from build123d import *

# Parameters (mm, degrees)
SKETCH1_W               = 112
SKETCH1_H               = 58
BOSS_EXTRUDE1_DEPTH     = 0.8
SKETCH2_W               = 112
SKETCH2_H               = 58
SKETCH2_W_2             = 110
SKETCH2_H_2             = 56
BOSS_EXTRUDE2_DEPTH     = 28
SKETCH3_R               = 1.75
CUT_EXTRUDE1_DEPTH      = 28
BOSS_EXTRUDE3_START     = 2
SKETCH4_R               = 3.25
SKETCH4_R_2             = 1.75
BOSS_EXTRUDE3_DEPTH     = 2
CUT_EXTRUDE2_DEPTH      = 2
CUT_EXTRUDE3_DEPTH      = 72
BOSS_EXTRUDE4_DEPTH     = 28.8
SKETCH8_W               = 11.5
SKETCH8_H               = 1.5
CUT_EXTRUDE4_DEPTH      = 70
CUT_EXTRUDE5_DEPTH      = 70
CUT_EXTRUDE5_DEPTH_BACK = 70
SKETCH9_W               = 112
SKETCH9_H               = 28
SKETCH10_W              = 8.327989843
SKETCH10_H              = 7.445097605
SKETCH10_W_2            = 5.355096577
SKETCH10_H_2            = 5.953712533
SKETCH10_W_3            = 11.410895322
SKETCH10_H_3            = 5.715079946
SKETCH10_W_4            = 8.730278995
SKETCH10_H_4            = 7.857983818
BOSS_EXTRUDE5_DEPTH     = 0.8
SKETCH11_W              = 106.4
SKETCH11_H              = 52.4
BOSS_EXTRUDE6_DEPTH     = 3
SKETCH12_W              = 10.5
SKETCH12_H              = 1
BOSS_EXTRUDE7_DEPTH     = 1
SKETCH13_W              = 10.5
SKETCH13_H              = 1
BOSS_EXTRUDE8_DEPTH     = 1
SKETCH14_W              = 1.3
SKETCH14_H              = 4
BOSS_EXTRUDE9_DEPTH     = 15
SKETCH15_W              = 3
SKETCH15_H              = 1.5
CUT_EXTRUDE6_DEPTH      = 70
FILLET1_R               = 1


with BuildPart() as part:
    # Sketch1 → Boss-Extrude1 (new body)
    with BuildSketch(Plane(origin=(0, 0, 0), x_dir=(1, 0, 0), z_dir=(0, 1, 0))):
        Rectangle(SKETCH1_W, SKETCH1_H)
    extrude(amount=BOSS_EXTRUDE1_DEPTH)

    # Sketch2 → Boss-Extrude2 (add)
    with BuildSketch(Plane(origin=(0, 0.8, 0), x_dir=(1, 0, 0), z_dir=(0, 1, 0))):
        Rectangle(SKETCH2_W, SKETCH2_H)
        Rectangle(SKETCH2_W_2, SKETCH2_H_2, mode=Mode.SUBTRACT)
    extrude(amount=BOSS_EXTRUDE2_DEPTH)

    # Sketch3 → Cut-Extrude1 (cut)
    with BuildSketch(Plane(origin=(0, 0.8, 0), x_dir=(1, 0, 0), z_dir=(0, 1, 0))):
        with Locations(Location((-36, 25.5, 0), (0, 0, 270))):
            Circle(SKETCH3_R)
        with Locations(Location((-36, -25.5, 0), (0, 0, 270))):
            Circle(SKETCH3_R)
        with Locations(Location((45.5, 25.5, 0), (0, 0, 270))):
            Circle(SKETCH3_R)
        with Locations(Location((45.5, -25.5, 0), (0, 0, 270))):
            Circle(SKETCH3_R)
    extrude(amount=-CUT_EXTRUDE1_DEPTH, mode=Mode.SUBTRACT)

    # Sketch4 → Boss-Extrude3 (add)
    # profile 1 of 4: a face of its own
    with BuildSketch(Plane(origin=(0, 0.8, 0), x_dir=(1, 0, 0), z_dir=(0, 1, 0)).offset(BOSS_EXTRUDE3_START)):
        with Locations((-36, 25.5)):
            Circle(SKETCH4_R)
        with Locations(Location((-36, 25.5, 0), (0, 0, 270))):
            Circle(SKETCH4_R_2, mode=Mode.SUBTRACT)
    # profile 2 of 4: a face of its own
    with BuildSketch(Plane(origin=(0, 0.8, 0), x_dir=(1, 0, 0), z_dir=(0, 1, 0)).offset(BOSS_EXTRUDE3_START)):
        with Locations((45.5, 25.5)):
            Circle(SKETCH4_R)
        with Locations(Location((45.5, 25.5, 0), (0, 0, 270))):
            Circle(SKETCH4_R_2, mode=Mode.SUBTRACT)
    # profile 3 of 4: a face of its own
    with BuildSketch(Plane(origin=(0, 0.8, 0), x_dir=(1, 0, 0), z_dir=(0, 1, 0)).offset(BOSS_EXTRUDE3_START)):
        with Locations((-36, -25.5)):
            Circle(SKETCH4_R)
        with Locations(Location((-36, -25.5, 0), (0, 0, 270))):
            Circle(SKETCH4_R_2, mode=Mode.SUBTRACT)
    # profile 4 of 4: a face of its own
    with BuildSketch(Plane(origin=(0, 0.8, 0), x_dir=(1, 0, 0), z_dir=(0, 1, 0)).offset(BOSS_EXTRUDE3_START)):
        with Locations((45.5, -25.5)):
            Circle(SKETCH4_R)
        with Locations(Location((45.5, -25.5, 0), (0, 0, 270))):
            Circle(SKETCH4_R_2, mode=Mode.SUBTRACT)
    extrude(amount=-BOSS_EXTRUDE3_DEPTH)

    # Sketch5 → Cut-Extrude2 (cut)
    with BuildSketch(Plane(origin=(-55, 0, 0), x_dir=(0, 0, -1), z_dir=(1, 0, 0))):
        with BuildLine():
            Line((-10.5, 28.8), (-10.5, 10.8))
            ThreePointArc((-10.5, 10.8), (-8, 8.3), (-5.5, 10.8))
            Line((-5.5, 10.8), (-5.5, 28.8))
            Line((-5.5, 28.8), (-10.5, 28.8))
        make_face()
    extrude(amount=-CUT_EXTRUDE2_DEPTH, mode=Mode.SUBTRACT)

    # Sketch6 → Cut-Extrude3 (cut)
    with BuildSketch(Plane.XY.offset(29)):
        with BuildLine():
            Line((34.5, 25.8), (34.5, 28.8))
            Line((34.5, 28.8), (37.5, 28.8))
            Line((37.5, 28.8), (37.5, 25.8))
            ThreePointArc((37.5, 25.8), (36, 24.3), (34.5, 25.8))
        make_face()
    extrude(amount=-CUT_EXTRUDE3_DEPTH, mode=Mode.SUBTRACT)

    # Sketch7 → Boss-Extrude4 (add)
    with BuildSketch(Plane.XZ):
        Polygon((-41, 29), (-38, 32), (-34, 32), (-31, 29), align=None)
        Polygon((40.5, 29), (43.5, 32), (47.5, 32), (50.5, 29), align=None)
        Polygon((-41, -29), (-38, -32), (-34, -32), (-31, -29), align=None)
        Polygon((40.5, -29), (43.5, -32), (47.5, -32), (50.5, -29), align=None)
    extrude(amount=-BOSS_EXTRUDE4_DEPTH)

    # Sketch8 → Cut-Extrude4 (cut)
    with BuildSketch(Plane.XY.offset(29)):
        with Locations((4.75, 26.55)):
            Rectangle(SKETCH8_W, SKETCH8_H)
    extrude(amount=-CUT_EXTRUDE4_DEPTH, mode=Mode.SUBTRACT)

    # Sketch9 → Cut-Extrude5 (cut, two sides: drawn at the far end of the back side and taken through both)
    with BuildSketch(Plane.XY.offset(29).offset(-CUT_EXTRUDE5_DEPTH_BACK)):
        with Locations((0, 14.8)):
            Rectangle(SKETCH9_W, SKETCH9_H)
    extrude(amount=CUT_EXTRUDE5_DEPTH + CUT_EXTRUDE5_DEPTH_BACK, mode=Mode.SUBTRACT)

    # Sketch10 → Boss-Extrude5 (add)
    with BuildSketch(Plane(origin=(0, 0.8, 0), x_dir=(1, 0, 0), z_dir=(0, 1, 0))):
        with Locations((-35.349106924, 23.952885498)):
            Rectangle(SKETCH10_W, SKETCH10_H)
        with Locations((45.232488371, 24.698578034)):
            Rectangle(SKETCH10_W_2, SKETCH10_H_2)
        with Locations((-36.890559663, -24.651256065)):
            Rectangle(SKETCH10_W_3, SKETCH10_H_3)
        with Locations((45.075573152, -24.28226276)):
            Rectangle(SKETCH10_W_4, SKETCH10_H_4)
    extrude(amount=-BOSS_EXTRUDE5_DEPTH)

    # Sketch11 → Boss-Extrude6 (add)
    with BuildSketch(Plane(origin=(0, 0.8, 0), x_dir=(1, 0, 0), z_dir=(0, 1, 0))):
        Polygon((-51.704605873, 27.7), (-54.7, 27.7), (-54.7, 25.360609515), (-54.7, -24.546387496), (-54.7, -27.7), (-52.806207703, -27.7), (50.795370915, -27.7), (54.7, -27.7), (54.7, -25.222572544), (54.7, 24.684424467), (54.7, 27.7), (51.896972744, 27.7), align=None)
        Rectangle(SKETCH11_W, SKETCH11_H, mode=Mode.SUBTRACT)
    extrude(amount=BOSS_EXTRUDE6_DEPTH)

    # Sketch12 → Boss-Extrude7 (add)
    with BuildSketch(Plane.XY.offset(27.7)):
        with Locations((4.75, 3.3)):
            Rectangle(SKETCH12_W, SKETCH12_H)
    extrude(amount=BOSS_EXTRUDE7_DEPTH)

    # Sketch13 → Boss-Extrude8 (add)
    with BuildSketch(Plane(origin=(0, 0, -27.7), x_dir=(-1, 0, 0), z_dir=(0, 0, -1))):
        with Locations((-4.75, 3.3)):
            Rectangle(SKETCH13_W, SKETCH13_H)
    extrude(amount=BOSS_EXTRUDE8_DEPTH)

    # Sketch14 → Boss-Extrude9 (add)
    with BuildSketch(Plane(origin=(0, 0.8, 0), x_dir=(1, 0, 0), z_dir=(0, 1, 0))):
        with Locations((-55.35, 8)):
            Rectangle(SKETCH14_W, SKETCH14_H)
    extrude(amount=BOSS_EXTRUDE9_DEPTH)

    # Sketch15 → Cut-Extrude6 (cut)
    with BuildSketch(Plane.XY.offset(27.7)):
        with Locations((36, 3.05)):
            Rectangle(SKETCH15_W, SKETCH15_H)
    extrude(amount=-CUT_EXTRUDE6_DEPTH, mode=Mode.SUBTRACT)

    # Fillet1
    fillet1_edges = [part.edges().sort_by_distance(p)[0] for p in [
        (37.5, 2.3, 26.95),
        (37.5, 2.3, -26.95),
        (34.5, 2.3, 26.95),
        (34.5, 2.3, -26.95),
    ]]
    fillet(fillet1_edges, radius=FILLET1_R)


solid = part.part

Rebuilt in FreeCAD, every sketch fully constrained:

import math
import FreeCAD as App
import Part
import Sketcher
from FreeCAD import Vector
Q = App.Units.Quantity


def edges_at(feature, points):
    """Names of the edges that pass closest to the given points."""
    edges = feature.Shape.Edges
    near = lambda p: min(range(len(edges)), key=lambda i: edges[i].distToShape(Part.Vertex(*p))[0])
    return sorted({f"Edge{near(p) + 1}" for p in points})


def add_polygon(sketch, points):
    """Adds a closed chain of lines whose ends are joined by coincident constraints."""
    first, n = sketch.GeometryCount, len(points)
    for a, b in zip(points, points[1:] + points[:1]):
        sketch.addGeometry(Part.LineSegment(App.Vector(*a, 0), App.Vector(*b, 0)), False)
    for i in range(n):
        sketch.addConstraint(Sketcher.Constraint("Coincident", first + i, 2, first + (i + 1) % n, 1))

doc = App.newDocument("Part")
params = doc.addObject("Spreadsheet::Sheet", "Params")
for row, (alias, value) in enumerate([
    ("sketch1_width", "112 mm"),
    ("sketch1_height", "58 mm"),
    ("pad1_length", "0.8 mm"),
    ("sketch2_width", "112 mm"),
    ("sketch2_width2", "110 mm"),
    ("sketch2_height", "58 mm"),
    ("sketch2_height2", "56 mm"),
    ("pad2_length", "28 mm"),
    ("sketch3_diameter", "3.5 mm"),
    ("pocket1_length", "28 mm"),
    ("sketch4_diameter", "6.5 mm"),
    ("sketch4_diameter2", "3.5 mm"),
    ("pad3_length", "2 mm"),
    ("sketch5_radius", "2.5 mm"),
    ("sketch5_width", "18 mm"),
    ("pocket2_length", "2 mm"),
    ("sketch6_radius", "1.5 mm"),
    ("pocket3_length", "72 mm"),
    ("sketch7_width", "10 mm"),
    ("sketch7_width2", "4 mm"),
    ("pad4_length", "28.8 mm"),
    ("sketch8_width", "11.5 mm"),
    ("sketch8_height", "1.5 mm"),
    ("pocket4_length", "70 mm"),
    ("sketch9_width", "112 mm"),
    ("sketch9_height", "28 mm"),
    ("pad5_length", "0.8 mm"),
    ("sketch11_width", "109.4 mm"),
    ("sketch11_width2", "106.4 mm"),
    ("sketch11_height", "55.4 mm"),
    ("sketch11_height2", "52.4 mm"),
    ("pad6_length", "3 mm"),
    ("sketch12_height", "1 mm"),
    ("sketch12_width", "10.5 mm"),
    ("pad7_length", "1 mm"),
    ("sketch13_height", "1 mm"),
    ("sketch13_width", "10.5 mm"),
    ("pad8_length", "1 mm"),
    ("sketch14_height", "4 mm"),
    ("sketch14_width", "1.3 mm"),
    ("pad9_length", "15 mm"),
    ("sketch15_width", "3 mm"),
    ("sketch15_height", "1.5 mm"),
    ("pocket6_length", "70 mm"),
    ("fillet_radius", "1 mm"),
], start=1):
    params.set(f"A{row}", alias)
    params.set(f"B{row}", "=" + value)
    params.setAlias(f"B{row}", alias)

body = doc.addObject("PartDesign::Body", "Body")

sketch1 = body.newObject("Sketcher::SketchObject", "Sketch")
sketch1.AttachmentSupport = (doc.getObject("XZ_Plane"), [""])
sketch1.MapMode = "FlatFace"
add_polygon(sketch1, [(-56, -29), (-56, 29), (56, 29), (56, -29)])
sketch1.addConstraint([
    Sketcher.Constraint("Vertical", 0),
    Sketcher.Constraint("Horizontal", 1),
    Sketcher.Constraint("Vertical", 2),
    Sketcher.Constraint("Horizontal", 3),
    Sketcher.Constraint("Symmetric", 0, 2, 2, 2, -1, 1),
    Sketcher.Constraint("DistanceX", 1, 1, 1, 2, Q("112 mm")),
    Sketcher.Constraint("DistanceY", 0, 1, 0, 2, Q("58 mm")),
])
sketch1.setExpression("Constraints[9]", "Params.sketch1_width")
sketch1.setExpression("Constraints[10]", "Params.sketch1_height")
pad1 = body.newObject("PartDesign::Pad", "Pad")
pad1.Profile = sketch1
pad1.setExpression("Length", "Params.pad1_length")
pad1.Reversed = True

sketch2 = body.newObject("Sketcher::SketchObject", "Sketch001")
sketch2.AttachmentSupport = (doc.getObject("XZ_Plane"), [""])
sketch2.MapMode = "FlatFace"
sketch2.AttachmentOffset = App.Placement(Vector(0, 0, -0.8), App.Rotation())
add_polygon(sketch2, [(-56, -29), (-56, 29), (56, 29), (56, -29)])
add_polygon(sketch2, [(55, 28), (-55, 28), (-55, -28), (55, -28)])
sketch2.addConstraint([
    Sketcher.Constraint("Vertical", 0),
    Sketcher.Constraint("Horizontal", 1),
    Sketcher.Constraint("Vertical", 2),
    Sketcher.Constraint("Horizontal", 3),
    Sketcher.Constraint("Horizontal", 4),
    Sketcher.Constraint("Vertical", 5),
    Sketcher.Constraint("Horizontal", 6),
    Sketcher.Constraint("Vertical", 7),
    Sketcher.Constraint("Symmetric", 0, 2, 2, 2, -1, 1),
    Sketcher.Constraint("Symmetric", 4, 2, 6, 2, -1, 1),
    Sketcher.Constraint("DistanceX", 1, 1, 1, 2, Q("112 mm")),
    Sketcher.Constraint("DistanceX", 4, 2, 4, 1, Q("110 mm")),
    Sketcher.Constraint("DistanceY", 0, 1, 0, 2, Q("58 mm")),
    Sketcher.Constraint("DistanceY", 5, 2, 5, 1, Q("56 mm")),
])
sketch2.setExpression("Constraints[18]", "Params.sketch2_width")
sketch2.setExpression("Constraints[19]", "Params.sketch2_width2")
sketch2.setExpression("Constraints[20]", "Params.sketch2_height")
sketch2.setExpression("Constraints[21]", "Params.sketch2_height2")
pad2 = body.newObject("PartDesign::Pad", "Pad001")
pad2.Profile = sketch2
pad2.setExpression("Length", "Params.pad2_length")
pad2.Reversed = True

sketch3 = body.newObject("Sketcher::SketchObject", "Sketch002")
sketch3.AttachmentSupport = (doc.getObject("XZ_Plane"), [""])
sketch3.MapMode = "FlatFace"
sketch3.AttachmentOffset = App.Placement(Vector(0, 0, -0.8), App.Rotation())
sketch3.addGeometry([
    Part.Circle(Vector(-36, -25.5, 0), Vector(0, 0, 1), 1.8),
    Part.Circle(Vector(-36, 25.5, 0), Vector(0, 0, 1), 1.8),
    Part.Circle(Vector(45.5, -25.5, 0), Vector(0, 0, 1), 1.8),
    Part.Circle(Vector(45.5, 25.5, 0), Vector(0, 0, 1), 1.8),
], False)
sketch3.addConstraint([
    Sketcher.Constraint("Equal", 0, 1),
    Sketcher.Constraint("Equal", 1, 2),
    Sketcher.Constraint("Equal", 2, 3),
    Sketcher.Constraint("Symmetric", 0, 3, 1, 3, -1),
    Sketcher.Constraint("Symmetric", 2, 3, 3, 3, -1),
    Sketcher.Constraint("Horizontal", 0, 3, 2, 3),
    Sketcher.Constraint("Diameter", 0, Q("3.5 mm")),
    Sketcher.Constraint("DistanceX", 0, 3, -1, 1, Q("36 mm")),
    Sketcher.Constraint("DistanceY", 0, 3, 1, 3, Q("51 mm")),
    Sketcher.Constraint("DistanceX", -1, 1, 2, 3, Q("45.5 mm")),
])
sketch3.setExpression("Constraints[6]", "Params.sketch3_diameter")
pocket1 = body.newObject("PartDesign::Pocket", "Pocket")
pocket1.Profile = sketch3
pocket1.setExpression("Length", "Params.pocket1_length")
pocket1.Reversed = True

sketch4 = body.newObject("Sketcher::SketchObject", "Sketch003")
sketch4.AttachmentSupport = (doc.getObject("XZ_Plane"), [""])
sketch4.MapMode = "FlatFace"
sketch4.AttachmentOffset = App.Placement(Vector(0, 0, -2.8), App.Rotation())
sketch4.addGeometry([
    Part.Circle(Vector(-36, -25.5, 0), Vector(0, 0, 1), 3.2),
    Part.Circle(Vector(-36, -25.5, 0), Vector(0, 0, 1), 1.8),
    Part.Circle(Vector(45.5, -25.5, 0), Vector(0, 0, 1), 3.2),
    Part.Circle(Vector(45.5, -25.5, 0), Vector(0, 0, 1), 1.8),
    Part.Circle(Vector(-36, 25.5, 0), Vector(0, 0, 1), 3.2),
    Part.Circle(Vector(-36, 25.5, 0), Vector(0, 0, 1), 1.8),
    Part.Circle(Vector(45.5, 25.5, 0), Vector(0, 0, 1), 3.2),
    Part.Circle(Vector(45.5, 25.5, 0), Vector(0, 0, 1), 1.8),
], False)
sketch4.addConstraint([
    Sketcher.Constraint("Coincident", 1, 3, 0, 3),
    Sketcher.Constraint("Coincident", 3, 3, 2, 3),
    Sketcher.Constraint("Coincident", 5, 3, 4, 3),
    Sketcher.Constraint("Coincident", 7, 3, 6, 3),
    Sketcher.Constraint("Equal", 0, 2),
    Sketcher.Constraint("Equal", 1, 3),
    Sketcher.Constraint("Equal", 2, 4),
    Sketcher.Constraint("Equal", 3, 5),
    Sketcher.Constraint("Equal", 4, 6),
    Sketcher.Constraint("Equal", 5, 7),
    Sketcher.Constraint("Symmetric", 0, 3, 4, 3, -1),
    Sketcher.Constraint("Symmetric", 2, 3, 6, 3, -1),
    Sketcher.Constraint("Horizontal", 1, 3, 2, 3),
    Sketcher.Constraint("Diameter", 0, Q("6.5 mm")),
    Sketcher.Constraint("Diameter", 1, Q("3.5 mm")),
    Sketcher.Constraint("DistanceX", 0, 3, -1, 1, Q("36 mm")),
    Sketcher.Constraint("DistanceY", 0, 3, 4, 3, Q("51 mm")),
    Sketcher.Constraint("DistanceX", -1, 1, 2, 3, Q("45.5 mm")),
])
sketch4.setExpression("Constraints[13]", "Params.sketch4_diameter")
sketch4.setExpression("Constraints[14]", "Params.sketch4_diameter2")
pad3 = body.newObject("PartDesign::Pad", "Pad002")
pad3.Profile = sketch4
pad3.setExpression("Length", "Params.pad3_length")

sketch5 = body.newObject("Sketcher::SketchObject", "Sketch004")
sketch5.AttachmentSupport = (doc.getObject("YZ_Plane"), [""])
sketch5.MapMode = "FlatFace"
sketch5.AttachmentOffset = App.Placement(Vector(0, 0, -55), App.Rotation())
sketch5.addGeometry([
    Part.LineSegment(Vector(28.8, 10.5, 0), Vector(10.8, 10.5, 0)),
    Part.ArcOfCircle(Part.Circle(Vector(10.8, 8, 0), Vector(0, 0, 1), 2.5), math.radians(90), math.radians(270)),
    Part.LineSegment(Vector(10.8, 5.5, 0), Vector(28.8, 5.5, 0)),
    Part.LineSegment(Vector(28.8, 5.5, 0), Vector(28.8, 10.5, 0)),
], False)
sketch5.addConstraint([
    Sketcher.Constraint("Tangent", 0, 2, 1, 1),
    Sketcher.Constraint("Tangent", 1, 2, 2, 1),
    Sketcher.Constraint("Coincident", 2, 2, 3, 1),
    Sketcher.Constraint("Coincident", 3, 2, 0, 1),
    Sketcher.Constraint("Horizontal", 0),
    Sketcher.Constraint("Horizontal", 2),
    Sketcher.Constraint("Vertical", 3),
    Sketcher.Constraint("Radius", 1, Q("2.5 mm")),
    Sketcher.Constraint("DistanceX", 0, 2, 0, 1, Q("18 mm")),
    Sketcher.Constraint("DistanceY", -1, 1, 1, 3, Q("8 mm")),
    Sketcher.Constraint("DistanceX", -1, 1, 1, 3, Q("10.8 mm")),
])
sketch5.setExpression("Constraints[7]", "Params.sketch5_radius")
sketch5.setExpression("Constraints[8]", "Params.sketch5_width")
pocket2 = body.newObject("PartDesign::Pocket", "Pocket001")
pocket2.Profile = sketch5
pocket2.setExpression("Length", "Params.pocket2_length")

sketch6 = body.newObject("Sketcher::SketchObject", "Sketch005")
sketch6.AttachmentSupport = (doc.getObject("XY_Plane"), [""])
sketch6.MapMode = "FlatFace"
sketch6.AttachmentOffset = App.Placement(Vector(0, 0, 29), App.Rotation())
sketch6.addGeometry([
    Part.LineSegment(Vector(34.5, 28.8, 0), Vector(34.5, 25.8, 0)),
    Part.ArcOfCircle(Part.Circle(Vector(36, 25.8, 0), Vector(0, 0, 1), 1.5), math.radians(180), math.radians(360)),
    Part.LineSegment(Vector(37.5, 25.8, 0), Vector(37.5, 28.8, 0)),
    Part.LineSegment(Vector(37.5, 28.8, 0), Vector(34.5, 28.8, 0)),
], False)
sketch6.addConstraint([
    Sketcher.Constraint("Tangent", 0, 2, 1, 1),
    Sketcher.Constraint("Tangent", 1, 2, 2, 1),
    Sketcher.Constraint("Coincident", 2, 2, 3, 1),
    Sketcher.Constraint("Coincident", 3, 2, 0, 1),
    Sketcher.Constraint("Vertical", 0),
    Sketcher.Constraint("Vertical", 2),
    Sketcher.Constraint("Horizontal", 3),
    Sketcher.Constraint("Equal", 3, 0),
    Sketcher.Constraint("Radius", 1, Q("1.5 mm")),
    Sketcher.Constraint("DistanceX", -1, 1, 1, 3, Q("36 mm")),
    Sketcher.Constraint("DistanceY", -1, 1, 1, 3, Q("25.8 mm")),
])
sketch6.setExpression("Constraints[8]", "Params.sketch6_radius")
pocket3 = body.newObject("PartDesign::Pocket", "Pocket002")
pocket3.Profile = sketch6
pocket3.setExpression("Length", "Params.pocket3_length")

sketch7 = body.newObject("Sketcher::SketchObject", "Sketch006")
sketch7.AttachmentSupport = (doc.getObject("XZ_Plane"), [""])
sketch7.MapMode = "FlatFace"
add_polygon(sketch7, [(-38, 32), (-41, 29), (-31, 29), (-34, 32)])
add_polygon(sketch7, [(43.5, 32), (40.5, 29), (50.5, 29), (47.5, 32)])
add_polygon(sketch7, [(-41, -29), (-38, -32), (-34, -32), (-31, -29)])
add_polygon(sketch7, [(40.5, -29), (43.5, -32), (47.5, -32), (50.5, -29)])
sketch7.addConstraint([
    Sketcher.Constraint("Horizontal", 1),
    Sketcher.Constraint("Horizontal", 3),
    Sketcher.Constraint("Horizontal", 5),
    Sketcher.Constraint("Horizontal", 7),
    Sketcher.Constraint("Horizontal", 9),
    Sketcher.Constraint("Horizontal", 11),
    Sketcher.Constraint("Horizontal", 13),
    Sketcher.Constraint("Horizontal", 15),
    Sketcher.Constraint("Symmetric", 3, 2, 8, 2, -1),
    Sketcher.Constraint("Symmetric", 1, 2, 10, 2, -1),
    Sketcher.Constraint("Symmetric", 7, 2, 12, 2, -1),
    Sketcher.Constraint("Symmetric", 5, 2, 14, 2, -1),
    Sketcher.Constraint("Perpendicular", 0, 2),
    Sketcher.Constraint("Perpendicular", 2, 4),
    Sketcher.Constraint("Perpendicular", 4, 6),
    Sketcher.Constraint("Parallel", 6, 8),
    Sketcher.Constraint("Perpendicular", 8, 10),
    Sketcher.Constraint("Perpendicular", 10, 12),
    Sketcher.Constraint("Perpendicular", 12, 14),
    Sketcher.Constraint("Horizontal", 1, 2, 4, 2),
    Sketcher.Constraint("Horizontal", 3, 2, 6, 2),
    Sketcher.Constraint("Vertical", 2, 2, 9, 2),
    Sketcher.Constraint("Equal", 1, 5),
    Sketcher.Constraint("DistanceX", 1, 1, 1, 2, Q("10 mm")),
    Sketcher.Constraint("DistanceX", 3, 2, 3, 1, Q("4 mm")),
    Sketcher.Constraint("DistanceX", 0, 2, -1, 1, Q("41 mm")),
    Sketcher.Constraint("DistanceY", -1, 1, 0, 2, Q("29 mm")),
    Sketcher.Constraint("DistanceX", -1, 1, 4, 2, Q("40.5 mm")),
])
sketch7.setExpression("Constraints[39]", "Params.sketch7_width")
sketch7.setExpression("Constraints[40]", "Params.sketch7_width2")
pad4 = body.newObject("PartDesign::Pad", "Pad003")
pad4.Profile = sketch7
pad4.setExpression("Length", "Params.pad4_length")
pad4.Reversed = True

sketch8 = body.newObject("Sketcher::SketchObject", "Sketch007")
sketch8.AttachmentSupport = (doc.getObject("XY_Plane"), [""])
sketch8.MapMode = "FlatFace"
sketch8.AttachmentOffset = App.Placement(Vector(0, 0, 29), App.Rotation())
add_polygon(sketch8, [(-1, 27.3), (-1, 25.8), (10.5, 25.8), (10.5, 27.3)])
sketch8.addConstraint([
    Sketcher.Constraint("Vertical", 0),
    Sketcher.Constraint("Horizontal", 1),
    Sketcher.Constraint("Vertical", 2),
    Sketcher.Constraint("Horizontal", 3),
    Sketcher.Constraint("DistanceX", 1, 1, 1, 2, Q("11.5 mm")),
    Sketcher.Constraint("DistanceY", 0, 2, 0, 1, Q("1.5 mm")),
    Sketcher.Constraint("DistanceX", 0, 2, -1, 1, Q("1 mm")),
    Sketcher.Constraint("DistanceY", -1, 1, 0, 2, Q("25.8 mm")),
])
sketch8.setExpression("Constraints[8]", "Params.sketch8_width")
sketch8.setExpression("Constraints[9]", "Params.sketch8_height")
pocket4 = body.newObject("PartDesign::Pocket", "Pocket003")
pocket4.Profile = sketch8
pocket4.setExpression("Length", "Params.pocket4_length")

sketch9 = body.newObject("Sketcher::SketchObject", "Sketch008")
sketch9.AttachmentSupport = (doc.getObject("XY_Plane"), [""])
sketch9.MapMode = "FlatFace"
sketch9.AttachmentOffset = App.Placement(Vector(0, 0, 29), App.Rotation())
add_polygon(sketch9, [(-56, 29), (-56, 1), (56, 1), (56, 29)])
sketch9.addConstraint([
    Sketcher.Constraint("Vertical", 0),
    Sketcher.Constraint("Horizontal", 1),
    Sketcher.Constraint("Vertical", 2),
    Sketcher.Constraint("Horizontal", 3),
    Sketcher.Constraint("DistanceX", 1, 1, 1, 2, Q("112 mm")),
    Sketcher.Constraint("DistanceY", 0, 2, 0, 1, Q("28 mm")),
    Sketcher.Constraint("DistanceX", 0, 2, -1, 1, Q("56 mm")),
    Sketcher.Constraint("DistanceY", -1, 1, 0, 2, Q("0.8 mm")),
])
sketch9.setExpression("Constraints[8]", "Params.sketch9_width")
sketch9.setExpression("Constraints[9]", "Params.sketch9_height")
pocket5 = body.newObject("PartDesign::Pocket", "Pocket004")
pocket5.Profile = sketch9
pocket5.Type = "ThroughAll"
pocket5.Midplane = True

sketch10 = body.newObject("Sketcher::SketchObject", "Sketch009")
sketch10.AttachmentSupport = (doc.getObject("XZ_Plane"), [""])
sketch10.MapMode = "FlatFace"
sketch10.AttachmentOffset = App.Placement(Vector(0, 0, -0.8), App.Rotation())
add_polygon(sketch10, [(-40, -28), (-40, -20), (-31, -20), (-31, -28)])
add_polygon(sketch10, [(43, -28), (43, -22), (48, -22), (48, -28)])
add_polygon(sketch10, [(-43, 22), (-43, 28), (-31, 28), (-31, 22)])
add_polygon(sketch10, [(41, 20), (41, 28), (49, 28), (49, 20)])
sketch10.addConstraint([
    Sketcher.Constraint("Vertical", 0),
    Sketcher.Constraint("Horizontal", 1),
    Sketcher.Constraint("Vertical", 2),
    Sketcher.Constraint("Horizontal", 3),
    Sketcher.Constraint("Vertical", 4),
    Sketcher.Constraint("Horizontal", 5),
    Sketcher.Constraint("Vertical", 6),
    Sketcher.Constraint("Horizontal", 7),
    Sketcher.Constraint("Vertical", 8),
    Sketcher.Constraint("Horizontal", 9),
    Sketcher.Constraint("Vertical", 10),
    Sketcher.Constraint("Horizontal", 11),
    Sketcher.Constraint("Vertical", 12),
    Sketcher.Constraint("Horizontal", 13),
    Sketcher.Constraint("Vertical", 14),
    Sketcher.Constraint("Horizontal", 15),
    Sketcher.Constraint("Horizontal", 3, 2, 6, 2),
    Sketcher.Constraint("Vertical", 2, 2, 9, 2),
    Sketcher.Constraint("DistanceX", 1, 1, 1, 2, Q("8.32799 mm")),
    Sketcher.Constraint("DistanceX", 13, 1, 13, 2, Q("8.730279 mm")),
    Sketcher.Constraint("DistanceY", 8, 1, 8, 2, Q("5.71508 mm")),
    Sketcher.Constraint("DistanceX", 0, 2, -1, 1, Q("39.513102 mm")),
    Sketcher.Constraint("DistanceX", 5, 1, 5, 2, Q("5.355097 mm")),
    Sketcher.Constraint("DistanceX", 9, 1, 9, 2, Q("11.410895 mm")),
    Sketcher.Constraint("DistanceY", 0, 1, 0, 2, Q("7.445098 mm")),
    Sketcher.Constraint("DistanceY", 4, 1, 4, 2, Q("5.953713 mm")),
    Sketcher.Constraint("DistanceY", 12, 1, 12, 2, Q("7.857984 mm")),
    Sketcher.Constraint("DistanceX", -1, 1, 4, 2, Q("42.55494 mm")),
    Sketcher.Constraint("DistanceY", 4, 2, -1, 1, Q("21.721722 mm")),
    Sketcher.Constraint("DistanceY", -1, 1, 14, 2, Q("20.353271 mm")),
    Sketcher.Constraint("DistanceY", 3, 2, 8, 2, Q("55.18423 mm")),
    Sketcher.Constraint("DistanceX", -1, 1, 12, 2, Q("40.710434 mm")),
])
pad5 = body.newObject("PartDesign::Pad", "Pad004")
pad5.Profile = sketch10
pad5.setExpression("Length", "Params.pad5_length")

sketch11 = body.newObject("Sketcher::SketchObject", "Sketch010")
sketch11.AttachmentSupport = (doc.getObject("XZ_Plane"), [""])
sketch11.MapMode = "FlatFace"
sketch11.AttachmentOffset = App.Placement(Vector(0, 0, -0.8), App.Rotation())
add_polygon(sketch11, [(-55, -28), (-55, 28), (55, 28), (55, -28)])
add_polygon(sketch11, [(53, 26), (-53, 26), (-53, -26), (53, -26)])
sketch11.addConstraint([
    Sketcher.Constraint("Vertical", 0),
    Sketcher.Constraint("Horizontal", 1),
    Sketcher.Constraint("Vertical", 2),
    Sketcher.Constraint("Horizontal", 3),
    Sketcher.Constraint("Horizontal", 4),
    Sketcher.Constraint("Vertical", 5),
    Sketcher.Constraint("Horizontal", 6),
    Sketcher.Constraint("Vertical", 7),
    Sketcher.Constraint("Symmetric", 0, 2, 2, 2, -1, 1),
    Sketcher.Constraint("Symmetric", 4, 2, 6, 2, -1, 1),
    Sketcher.Constraint("DistanceX", 1, 1, 1, 2, Q("109.4 mm")),
    Sketcher.Constraint("DistanceX", 4, 2, 4, 1, Q("106.4 mm")),
    Sketcher.Constraint("DistanceY", 0, 1, 0, 2, Q("55.4 mm")),
    Sketcher.Constraint("DistanceY", 5, 2, 5, 1, Q("52.4 mm")),
])
sketch11.setExpression("Constraints[18]", "Params.sketch11_width")
sketch11.setExpression("Constraints[19]", "Params.sketch11_width2")
sketch11.setExpression("Constraints[20]", "Params.sketch11_height")
sketch11.setExpression("Constraints[21]", "Params.sketch11_height2")
pad6 = body.newObject("PartDesign::Pad", "Pad005")
pad6.Profile = sketch11
pad6.setExpression("Length", "Params.pad6_length")
pad6.Reversed = True

sketch12 = body.newObject("Sketcher::SketchObject", "Sketch011")
sketch12.AttachmentSupport = (doc.getObject("XY_Plane"), [""])
sketch12.MapMode = "FlatFace"
sketch12.AttachmentOffset = App.Placement(Vector(0, 0, 27.7), App.Rotation())
add_polygon(sketch12, [(-0.5, 3.8), (-0.5, 2.8), (10, 2.8), (10, 3.8)])
sketch12.addConstraint([
    Sketcher.Constraint("Vertical", 0),
    Sketcher.Constraint("Horizontal", 1),
    Sketcher.Constraint("Vertical", 2),
    Sketcher.Constraint("Horizontal", 3),
    Sketcher.Constraint("DistanceY", 0, 2, 0, 1, Q("1 mm")),
    Sketcher.Constraint("DistanceX", 1, 1, 1, 2, Q("10.5 mm")),
    Sketcher.Constraint("DistanceX", -1, 1, 1, 2, Q("10 mm")),
    Sketcher.Constraint("DistanceY", -1, 1, 0, 2, Q("2.8 mm")),
])
sketch12.setExpression("Constraints[8]", "Params.sketch12_height")
sketch12.setExpression("Constraints[9]", "Params.sketch12_width")
pad7 = body.newObject("PartDesign::Pad", "Pad006")
pad7.Profile = sketch12
pad7.setExpression("Length", "Params.pad7_length")

sketch13 = body.newObject("Sketcher::SketchObject", "Sketch012")
sketch13.AttachmentSupport = (doc.getObject("XY_Plane"), [""])
sketch13.MapMode = "FlatFace"
sketch13.AttachmentOffset = App.Placement(Vector(0, 0, -27.7), App.Rotation())
add_polygon(sketch13, [(10, 3.8), (10, 2.8), (-0.5, 2.8), (-0.5, 3.8)])
sketch13.addConstraint([
    Sketcher.Constraint("Vertical", 0),
    Sketcher.Constraint("Horizontal", 1),
    Sketcher.Constraint("Vertical", 2),
    Sketcher.Constraint("Horizontal", 3),
    Sketcher.Constraint("DistanceY", 0, 2, 0, 1, Q("1 mm")),
    Sketcher.Constraint("DistanceX", 1, 2, 1, 1, Q("10.5 mm")),
    Sketcher.Constraint("DistanceX", -1, 1, 0, 2, Q("10 mm")),
    Sketcher.Constraint("DistanceY", -1, 1, 0, 2, Q("2.8 mm")),
])
sketch13.setExpression("Constraints[8]", "Params.sketch13_height")
sketch13.setExpression("Constraints[9]", "Params.sketch13_width")
pad8 = body.newObject("PartDesign::Pad", "Pad007")
pad8.Profile = sketch13
pad8.setExpression("Length", "Params.pad8_length")
pad8.Reversed = True

sketch14 = body.newObject("Sketcher::SketchObject", "Sketch013")
sketch14.AttachmentSupport = (doc.getObject("XZ_Plane"), [""])
sketch14.MapMode = "FlatFace"
sketch14.AttachmentOffset = App.Placement(Vector(0, 0, -0.8), App.Rotation())
add_polygon(sketch14, [(-56, -10), (-56, -6), (-54.7, -6), (-54.7, -10)])
sketch14.addConstraint([
    Sketcher.Constraint("Vertical", 0),
    Sketcher.Constraint("Horizontal", 1),
    Sketcher.Constraint("Vertical", 2),
    Sketcher.Constraint("Horizontal", 3),
    Sketcher.Constraint("DistanceY", 0, 1, 0, 2, Q("4 mm")),
    Sketcher.Constraint("DistanceX", 1, 1, 1, 2, Q("1.3 mm")),
    Sketcher.Constraint("DistanceX", 0, 2, -1, 1, Q("56 mm")),
    Sketcher.Constraint("DistanceY", 0, 2, -1, 1, Q("6 mm")),
])
sketch14.setExpression("Constraints[8]", "Params.sketch14_height")
sketch14.setExpression("Constraints[9]", "Params.sketch14_width")
pad9 = body.newObject("PartDesign::Pad", "Pad008")
pad9.Profile = sketch14
pad9.setExpression("Length", "Params.pad9_length")
pad9.Reversed = True

sketch15 = body.newObject("Sketcher::SketchObject", "Sketch014")
sketch15.AttachmentSupport = (doc.getObject("XY_Plane"), [""])
sketch15.MapMode = "FlatFace"
sketch15.AttachmentOffset = App.Placement(Vector(0, 0, 27.7), App.Rotation())
add_polygon(sketch15, [(34.5, 3.8), (34.5, 2.3), (37.5, 2.3), (37.5, 3.8)])
sketch15.addConstraint([
    Sketcher.Constraint("Vertical", 0),
    Sketcher.Constraint("Horizontal", 1),
    Sketcher.Constraint("Vertical", 2),
    Sketcher.Constraint("Horizontal", 3),
    Sketcher.Constraint("DistanceX", 1, 1, 1, 2, Q("3 mm")),
    Sketcher.Constraint("DistanceY", 0, 2, 0, 1, Q("1.5 mm")),
    Sketcher.Constraint("DistanceX", -1, 1, 0, 2, Q("34.5 mm")),
    Sketcher.Constraint("DistanceY", -1, 1, 0, 2, Q("2.3 mm")),
])
sketch15.setExpression("Constraints[8]", "Params.sketch15_width")
sketch15.setExpression("Constraints[9]", "Params.sketch15_height")
pocket6 = body.newObject("PartDesign::Pocket", "Pocket005")
pocket6.Profile = sketch15
pocket6.setExpression("Length", "Params.pocket6_length")
doc.recompute()

fillet = body.newObject("PartDesign::Fillet", "Fillet")
fillet.Base = (pocket6, edges_at(pocket6, [
    (37.5, 2.3, 26.95),
    (37.5, 2.3, -26.95),
    (34.5, 2.3, 26.95),
    (34.5, 2.3, -26.95),
]))
fillet.setExpression("Radius", "Params.fillet_radius")

doc.recompute()
